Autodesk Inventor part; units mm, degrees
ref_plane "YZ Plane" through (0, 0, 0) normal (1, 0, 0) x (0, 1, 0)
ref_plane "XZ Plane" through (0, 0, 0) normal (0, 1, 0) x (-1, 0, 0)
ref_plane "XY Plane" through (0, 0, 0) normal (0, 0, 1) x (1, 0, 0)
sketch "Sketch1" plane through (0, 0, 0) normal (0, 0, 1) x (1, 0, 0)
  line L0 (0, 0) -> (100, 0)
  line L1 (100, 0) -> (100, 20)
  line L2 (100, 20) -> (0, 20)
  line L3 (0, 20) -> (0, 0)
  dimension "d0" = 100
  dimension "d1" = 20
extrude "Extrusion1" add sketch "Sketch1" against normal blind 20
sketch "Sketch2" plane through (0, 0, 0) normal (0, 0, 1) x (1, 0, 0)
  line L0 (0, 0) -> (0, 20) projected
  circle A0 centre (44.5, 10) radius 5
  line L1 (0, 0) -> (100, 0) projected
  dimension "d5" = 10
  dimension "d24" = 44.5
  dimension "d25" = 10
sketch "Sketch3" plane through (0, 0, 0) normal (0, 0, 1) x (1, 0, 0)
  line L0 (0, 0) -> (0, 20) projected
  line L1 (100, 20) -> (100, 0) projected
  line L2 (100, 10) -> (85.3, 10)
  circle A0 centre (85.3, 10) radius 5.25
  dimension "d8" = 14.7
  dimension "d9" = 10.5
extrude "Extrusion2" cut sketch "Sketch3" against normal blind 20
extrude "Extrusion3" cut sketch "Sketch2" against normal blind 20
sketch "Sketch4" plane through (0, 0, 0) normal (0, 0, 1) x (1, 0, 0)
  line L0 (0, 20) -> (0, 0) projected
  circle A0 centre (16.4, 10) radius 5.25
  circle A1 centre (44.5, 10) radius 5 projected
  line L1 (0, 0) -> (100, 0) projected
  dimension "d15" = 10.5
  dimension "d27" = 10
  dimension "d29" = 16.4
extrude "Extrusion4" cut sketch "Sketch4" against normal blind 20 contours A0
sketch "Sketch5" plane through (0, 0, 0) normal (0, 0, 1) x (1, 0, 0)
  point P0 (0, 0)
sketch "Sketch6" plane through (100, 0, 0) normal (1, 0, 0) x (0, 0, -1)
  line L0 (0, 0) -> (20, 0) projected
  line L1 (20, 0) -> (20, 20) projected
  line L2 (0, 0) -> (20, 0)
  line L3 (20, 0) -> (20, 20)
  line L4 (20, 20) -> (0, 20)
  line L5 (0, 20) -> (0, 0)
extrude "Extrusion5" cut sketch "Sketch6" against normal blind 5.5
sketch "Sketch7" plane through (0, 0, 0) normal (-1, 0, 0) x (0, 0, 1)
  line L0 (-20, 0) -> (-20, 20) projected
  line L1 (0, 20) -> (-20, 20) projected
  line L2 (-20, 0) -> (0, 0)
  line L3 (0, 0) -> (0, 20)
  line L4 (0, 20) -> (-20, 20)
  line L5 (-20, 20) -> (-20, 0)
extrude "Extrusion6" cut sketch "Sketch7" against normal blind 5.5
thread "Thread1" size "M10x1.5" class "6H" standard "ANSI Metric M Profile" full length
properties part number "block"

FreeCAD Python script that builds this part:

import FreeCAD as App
import Part
import Sketcher

V = App.Vector
Q = App.Units.Quantity

doc = App.newDocument("Part")
params = doc.addObject("Spreadsheet::Sheet", "Params")
for row, (alias, value) in enumerate([
    ("sketch1_width", "100 mm"),
    ("sketch1_height", "20 mm"),
    ("pad1_length", "20 mm"),
    ("sketch2_diameter", "10.5 mm"),
    ("pocket1_length", "20 mm"),
    ("sketch3_diameter", "10 mm"),
    ("pocket2_length", "20 mm"),
    ("sketch4_diameter", "10.5 mm"),
    ("pocket3_length", "20 mm"),
    ("sketch5_width", "20 mm"),
    ("pocket4_length", "5.5 mm"),
    ("sketch6_width", "20 mm"),
    ("pocket5_length", "5.5 mm"),
], start=1):
    params.set(f"A{row}", alias)
    params.set(f"B{row}", "=" + value)
    params.setAlias(f"B{row}", alias)

body = doc.addObject("PartDesign::Body", "Body")

sketch1 = doc.addObject("Sketcher::SketchObject", "Sketch")
body.addObject(sketch1)
sketch1.AttachmentSupport = (doc.XY_Plane, [""])
sketch1.MapMode = "FlatFace"
sketch1.addGeometry(Part.LineSegment(V(0, 20, 0), V(0, 0, 0)), False)
sketch1.addGeometry(Part.LineSegment(V(0, 0, 0), V(100, 0, 0)), False)
sketch1.addGeometry(Part.LineSegment(V(100, 0, 0), V(100, 20, 0)), False)
sketch1.addGeometry(Part.LineSegment(V(100, 20, 0), V(0, 20, 0)), False)
sketch1.addConstraint(Sketcher.Constraint("Coincident", 0, 2, 1, 1))
sketch1.addConstraint(Sketcher.Constraint("Coincident", 1, 2, 2, 1))
sketch1.addConstraint(Sketcher.Constraint("Coincident", 2, 2, 3, 1))
sketch1.addConstraint(Sketcher.Constraint("Coincident", 3, 2, 0, 1))
sketch1.addConstraint(Sketcher.Constraint("Vertical", 0))
sketch1.addConstraint(Sketcher.Constraint("Horizontal", 1))
sketch1.addConstraint(Sketcher.Constraint("Vertical", 2))
sketch1.addConstraint(Sketcher.Constraint("Horizontal", 3))
sketch1.addConstraint(Sketcher.Constraint("Coincident", 0, 2, -1, 1))
sketch1.addConstraint(Sketcher.Constraint("DistanceX", 1, 1, 1, 2, Q("100 mm")))
sketch1.addConstraint(Sketcher.Constraint("DistanceY", 0, 2, 0, 1, Q("20 mm")))
sketch1.setExpression("Constraints[9]", "Params.sketch1_width")
sketch1.setExpression("Constraints[10]", "Params.sketch1_height")
pad1 = doc.addObject("PartDesign::Pad", "Pad")
body.addObject(pad1)
pad1.Profile = sketch1
pad1.setExpression("Length", "Params.pad1_length")
pad1.Reversed = True

sketch2 = doc.addObject("Sketcher::SketchObject", "Sketch001")
body.addObject(sketch2)
sketch2.AttachmentSupport = (doc.XY_Plane, [""])
sketch2.MapMode = "FlatFace"
sketch2.addGeometry(Part.Circle(V(85, 10, 0), V(0, 0, 1), 5), False)
sketch2.addConstraint(Sketcher.Constraint("Diameter", 0, Q("10.5 mm")))
sketch2.addConstraint(Sketcher.Constraint("DistanceY", -1, 1, 0, 3, Q("10 mm")))
sketch2.addConstraint(Sketcher.Constraint("DistanceX", -1, 1, 0, 3, Q("85.3 mm")))
sketch2.setExpression("Constraints[0]", "Params.sketch2_diameter")
pocket1 = doc.addObject("PartDesign::Pocket", "Pocket")
body.addObject(pocket1)
pocket1.Profile = sketch2
pocket1.setExpression("Length", "Params.pocket1_length")

sketch3 = doc.addObject("Sketcher::SketchObject", "Sketch002")
body.addObject(sketch3)
sketch3.AttachmentSupport = (doc.XY_Plane, [""])
sketch3.MapMode = "FlatFace"
sketch3.addGeometry(Part.Circle(V(44, 10, 0), V(0, 0, 1), 5), False)
sketch3.addConstraint(Sketcher.Constraint("Diameter", 0, Q("10 mm")))
sketch3.addConstraint(Sketcher.Constraint("DistanceY", -1, 1, 0, 3, Q("10 mm")))
sketch3.addConstraint(Sketcher.Constraint("DistanceX", -1, 1, 0, 3, Q("44.5 mm")))
sketch3.setExpression("Constraints[0]", "Params.sketch3_diameter")
pocket2 = doc.addObject("PartDesign::Pocket", "Pocket001")
body.addObject(pocket2)
pocket2.Profile = sketch3
pocket2.setExpression("Length", "Params.pocket2_length")

sketch4 = doc.addObject("Sketcher::SketchObject", "Sketch003")
body.addObject(sketch4)
sketch4.AttachmentSupport = (doc.XY_Plane, [""])
sketch4.MapMode = "FlatFace"
sketch4.addGeometry(Part.Circle(V(16, 10, 0), V(0, 0, 1), 5), False)
sketch4.addConstraint(Sketcher.Constraint("Diameter", 0, Q("10.5 mm")))
sketch4.addConstraint(Sketcher.Constraint("DistanceY", -1, 1, 0, 3, Q("10 mm")))
sketch4.addConstraint(Sketcher.Constraint("DistanceX", -1, 1, 0, 3, Q("16.4 mm")))
sketch4.setExpression("Constraints[0]", "Params.sketch4_diameter")
pocket3 = doc.addObject("PartDesign::Pocket", "Pocket002")
body.addObject(pocket3)
pocket3.Profile = sketch4
pocket3.setExpression("Length", "Params.pocket3_length")

sketch5 = doc.addObject("Sketcher::SketchObject", "Sketch004")
body.addObject(sketch5)
sketch5.AttachmentSupport = (doc.YZ_Plane, [""])
sketch5.MapMode = "FlatFace"
sketch5.AttachmentOffset = App.Placement(V(0, 0, 100), App.Rotation())
sketch5.addGeometry(Part.LineSegment(V(20, 0, 0), V(0, 0, 0)), False)
sketch5.addGeometry(Part.LineSegment(V(0, 0, 0), V(0, -20, 0)), False)
sketch5.addGeometry(Part.LineSegment(V(0, -20, 0), V(20, -20, 0)), False)
sketch5.addGeometry(Part.LineSegment(V(20, -20, 0), V(20, 0, 0)), False)
sketch5.addConstraint(Sketcher.Constraint("Coincident", 0, 2, 1, 1))
sketch5.addConstraint(Sketcher.Constraint("Coincident", 1, 2, 2, 1))
sketch5.addConstraint(Sketcher.Constraint("Coincident", 2, 2, 3, 1))
sketch5.addConstraint(Sketcher.Constraint("Coincident", 3, 2, 0, 1))
sketch5.addConstraint(Sketcher.Constraint("Horizontal", 0))
sketch5.addConstraint(Sketcher.Constraint("Vertical", 1))
sketch5.addConstraint(Sketcher.Constraint("Horizontal", 2))
sketch5.addConstraint(Sketcher.Constraint("Vertical", 3))
sketch5.addConstraint(Sketcher.Constraint("Coincident", 0, 2, -1, 1))
sketch5.addConstraint(Sketcher.Constraint("Equal", 2, 1))
sketch5.addConstraint(Sketcher.Constraint("DistanceX", 0, 2, 0, 1, Q("20 mm")))
sketch5.setExpression("Constraints[10]", "Params.sketch5_width")
pocket4 = doc.addObject("PartDesign::Pocket", "Pocket003")
body.addObject(pocket4)
pocket4.Profile = sketch5
pocket4.setExpression("Length", "Params.pocket4_length")

sketch6 = doc.addObject("Sketcher::SketchObject", "Sketch005")
body.addObject(sketch6)
sketch6.AttachmentSupport = (doc.YZ_Plane, [""])
sketch6.MapMode = "FlatFace"
sketch6.addGeometry(Part.LineSegment(V(20, -20, 0), V(0, -20, 0)), False)
sketch6.addGeometry(Part.LineSegment(V(0, -20, 0), V(0, 0, 0)), False)
sketch6.addGeometry(Part.LineSegment(V(0, 0, 0), V(20, 0, 0)), False)
sketch6.addGeometry(Part.LineSegment(V(20, 0, 0), V(20, -20, 0)), False)
sketch6.addConstraint(Sketcher.Constraint("Coincident", 0, 2, 1, 1))
sketch6.addConstraint(Sketcher.Constraint("Coincident", 1, 2, 2, 1))
sketch6.addConstraint(Sketcher.Constraint("Coincident", 2, 2, 3, 1))
sketch6.addConstraint(Sketcher.Constraint("Coincident", 3, 2, 0, 1))
sketch6.addConstraint(Sketcher.Constraint("Horizontal", 0))
sketch6.addConstraint(Sketcher.Constraint("Vertical", 1))
sketch6.addConstraint(Sketcher.Constraint("Horizontal", 2))
sketch6.addConstraint(Sketcher.Constraint("Vertical", 3))
sketch6.addConstraint(Sketcher.Constraint("Coincident", 1, 2, -1, 1))
sketch6.addConstraint(Sketcher.Constraint("Equal", 2, 1))
sketch6.addConstraint(Sketcher.Constraint("DistanceX", 0, 2, 0, 1, Q("20 mm")))
sketch6.setExpression("Constraints[10]", "Params.sketch6_width")
pocket5 = doc.addObject("PartDesign::Pocket", "Pocket004")
body.addObject(pocket5)
pocket5.Profile = sketch6
pocket5.setExpression("Length", "Params.pocket5_length")
pocket5.Reversed = True

doc.recompute()
